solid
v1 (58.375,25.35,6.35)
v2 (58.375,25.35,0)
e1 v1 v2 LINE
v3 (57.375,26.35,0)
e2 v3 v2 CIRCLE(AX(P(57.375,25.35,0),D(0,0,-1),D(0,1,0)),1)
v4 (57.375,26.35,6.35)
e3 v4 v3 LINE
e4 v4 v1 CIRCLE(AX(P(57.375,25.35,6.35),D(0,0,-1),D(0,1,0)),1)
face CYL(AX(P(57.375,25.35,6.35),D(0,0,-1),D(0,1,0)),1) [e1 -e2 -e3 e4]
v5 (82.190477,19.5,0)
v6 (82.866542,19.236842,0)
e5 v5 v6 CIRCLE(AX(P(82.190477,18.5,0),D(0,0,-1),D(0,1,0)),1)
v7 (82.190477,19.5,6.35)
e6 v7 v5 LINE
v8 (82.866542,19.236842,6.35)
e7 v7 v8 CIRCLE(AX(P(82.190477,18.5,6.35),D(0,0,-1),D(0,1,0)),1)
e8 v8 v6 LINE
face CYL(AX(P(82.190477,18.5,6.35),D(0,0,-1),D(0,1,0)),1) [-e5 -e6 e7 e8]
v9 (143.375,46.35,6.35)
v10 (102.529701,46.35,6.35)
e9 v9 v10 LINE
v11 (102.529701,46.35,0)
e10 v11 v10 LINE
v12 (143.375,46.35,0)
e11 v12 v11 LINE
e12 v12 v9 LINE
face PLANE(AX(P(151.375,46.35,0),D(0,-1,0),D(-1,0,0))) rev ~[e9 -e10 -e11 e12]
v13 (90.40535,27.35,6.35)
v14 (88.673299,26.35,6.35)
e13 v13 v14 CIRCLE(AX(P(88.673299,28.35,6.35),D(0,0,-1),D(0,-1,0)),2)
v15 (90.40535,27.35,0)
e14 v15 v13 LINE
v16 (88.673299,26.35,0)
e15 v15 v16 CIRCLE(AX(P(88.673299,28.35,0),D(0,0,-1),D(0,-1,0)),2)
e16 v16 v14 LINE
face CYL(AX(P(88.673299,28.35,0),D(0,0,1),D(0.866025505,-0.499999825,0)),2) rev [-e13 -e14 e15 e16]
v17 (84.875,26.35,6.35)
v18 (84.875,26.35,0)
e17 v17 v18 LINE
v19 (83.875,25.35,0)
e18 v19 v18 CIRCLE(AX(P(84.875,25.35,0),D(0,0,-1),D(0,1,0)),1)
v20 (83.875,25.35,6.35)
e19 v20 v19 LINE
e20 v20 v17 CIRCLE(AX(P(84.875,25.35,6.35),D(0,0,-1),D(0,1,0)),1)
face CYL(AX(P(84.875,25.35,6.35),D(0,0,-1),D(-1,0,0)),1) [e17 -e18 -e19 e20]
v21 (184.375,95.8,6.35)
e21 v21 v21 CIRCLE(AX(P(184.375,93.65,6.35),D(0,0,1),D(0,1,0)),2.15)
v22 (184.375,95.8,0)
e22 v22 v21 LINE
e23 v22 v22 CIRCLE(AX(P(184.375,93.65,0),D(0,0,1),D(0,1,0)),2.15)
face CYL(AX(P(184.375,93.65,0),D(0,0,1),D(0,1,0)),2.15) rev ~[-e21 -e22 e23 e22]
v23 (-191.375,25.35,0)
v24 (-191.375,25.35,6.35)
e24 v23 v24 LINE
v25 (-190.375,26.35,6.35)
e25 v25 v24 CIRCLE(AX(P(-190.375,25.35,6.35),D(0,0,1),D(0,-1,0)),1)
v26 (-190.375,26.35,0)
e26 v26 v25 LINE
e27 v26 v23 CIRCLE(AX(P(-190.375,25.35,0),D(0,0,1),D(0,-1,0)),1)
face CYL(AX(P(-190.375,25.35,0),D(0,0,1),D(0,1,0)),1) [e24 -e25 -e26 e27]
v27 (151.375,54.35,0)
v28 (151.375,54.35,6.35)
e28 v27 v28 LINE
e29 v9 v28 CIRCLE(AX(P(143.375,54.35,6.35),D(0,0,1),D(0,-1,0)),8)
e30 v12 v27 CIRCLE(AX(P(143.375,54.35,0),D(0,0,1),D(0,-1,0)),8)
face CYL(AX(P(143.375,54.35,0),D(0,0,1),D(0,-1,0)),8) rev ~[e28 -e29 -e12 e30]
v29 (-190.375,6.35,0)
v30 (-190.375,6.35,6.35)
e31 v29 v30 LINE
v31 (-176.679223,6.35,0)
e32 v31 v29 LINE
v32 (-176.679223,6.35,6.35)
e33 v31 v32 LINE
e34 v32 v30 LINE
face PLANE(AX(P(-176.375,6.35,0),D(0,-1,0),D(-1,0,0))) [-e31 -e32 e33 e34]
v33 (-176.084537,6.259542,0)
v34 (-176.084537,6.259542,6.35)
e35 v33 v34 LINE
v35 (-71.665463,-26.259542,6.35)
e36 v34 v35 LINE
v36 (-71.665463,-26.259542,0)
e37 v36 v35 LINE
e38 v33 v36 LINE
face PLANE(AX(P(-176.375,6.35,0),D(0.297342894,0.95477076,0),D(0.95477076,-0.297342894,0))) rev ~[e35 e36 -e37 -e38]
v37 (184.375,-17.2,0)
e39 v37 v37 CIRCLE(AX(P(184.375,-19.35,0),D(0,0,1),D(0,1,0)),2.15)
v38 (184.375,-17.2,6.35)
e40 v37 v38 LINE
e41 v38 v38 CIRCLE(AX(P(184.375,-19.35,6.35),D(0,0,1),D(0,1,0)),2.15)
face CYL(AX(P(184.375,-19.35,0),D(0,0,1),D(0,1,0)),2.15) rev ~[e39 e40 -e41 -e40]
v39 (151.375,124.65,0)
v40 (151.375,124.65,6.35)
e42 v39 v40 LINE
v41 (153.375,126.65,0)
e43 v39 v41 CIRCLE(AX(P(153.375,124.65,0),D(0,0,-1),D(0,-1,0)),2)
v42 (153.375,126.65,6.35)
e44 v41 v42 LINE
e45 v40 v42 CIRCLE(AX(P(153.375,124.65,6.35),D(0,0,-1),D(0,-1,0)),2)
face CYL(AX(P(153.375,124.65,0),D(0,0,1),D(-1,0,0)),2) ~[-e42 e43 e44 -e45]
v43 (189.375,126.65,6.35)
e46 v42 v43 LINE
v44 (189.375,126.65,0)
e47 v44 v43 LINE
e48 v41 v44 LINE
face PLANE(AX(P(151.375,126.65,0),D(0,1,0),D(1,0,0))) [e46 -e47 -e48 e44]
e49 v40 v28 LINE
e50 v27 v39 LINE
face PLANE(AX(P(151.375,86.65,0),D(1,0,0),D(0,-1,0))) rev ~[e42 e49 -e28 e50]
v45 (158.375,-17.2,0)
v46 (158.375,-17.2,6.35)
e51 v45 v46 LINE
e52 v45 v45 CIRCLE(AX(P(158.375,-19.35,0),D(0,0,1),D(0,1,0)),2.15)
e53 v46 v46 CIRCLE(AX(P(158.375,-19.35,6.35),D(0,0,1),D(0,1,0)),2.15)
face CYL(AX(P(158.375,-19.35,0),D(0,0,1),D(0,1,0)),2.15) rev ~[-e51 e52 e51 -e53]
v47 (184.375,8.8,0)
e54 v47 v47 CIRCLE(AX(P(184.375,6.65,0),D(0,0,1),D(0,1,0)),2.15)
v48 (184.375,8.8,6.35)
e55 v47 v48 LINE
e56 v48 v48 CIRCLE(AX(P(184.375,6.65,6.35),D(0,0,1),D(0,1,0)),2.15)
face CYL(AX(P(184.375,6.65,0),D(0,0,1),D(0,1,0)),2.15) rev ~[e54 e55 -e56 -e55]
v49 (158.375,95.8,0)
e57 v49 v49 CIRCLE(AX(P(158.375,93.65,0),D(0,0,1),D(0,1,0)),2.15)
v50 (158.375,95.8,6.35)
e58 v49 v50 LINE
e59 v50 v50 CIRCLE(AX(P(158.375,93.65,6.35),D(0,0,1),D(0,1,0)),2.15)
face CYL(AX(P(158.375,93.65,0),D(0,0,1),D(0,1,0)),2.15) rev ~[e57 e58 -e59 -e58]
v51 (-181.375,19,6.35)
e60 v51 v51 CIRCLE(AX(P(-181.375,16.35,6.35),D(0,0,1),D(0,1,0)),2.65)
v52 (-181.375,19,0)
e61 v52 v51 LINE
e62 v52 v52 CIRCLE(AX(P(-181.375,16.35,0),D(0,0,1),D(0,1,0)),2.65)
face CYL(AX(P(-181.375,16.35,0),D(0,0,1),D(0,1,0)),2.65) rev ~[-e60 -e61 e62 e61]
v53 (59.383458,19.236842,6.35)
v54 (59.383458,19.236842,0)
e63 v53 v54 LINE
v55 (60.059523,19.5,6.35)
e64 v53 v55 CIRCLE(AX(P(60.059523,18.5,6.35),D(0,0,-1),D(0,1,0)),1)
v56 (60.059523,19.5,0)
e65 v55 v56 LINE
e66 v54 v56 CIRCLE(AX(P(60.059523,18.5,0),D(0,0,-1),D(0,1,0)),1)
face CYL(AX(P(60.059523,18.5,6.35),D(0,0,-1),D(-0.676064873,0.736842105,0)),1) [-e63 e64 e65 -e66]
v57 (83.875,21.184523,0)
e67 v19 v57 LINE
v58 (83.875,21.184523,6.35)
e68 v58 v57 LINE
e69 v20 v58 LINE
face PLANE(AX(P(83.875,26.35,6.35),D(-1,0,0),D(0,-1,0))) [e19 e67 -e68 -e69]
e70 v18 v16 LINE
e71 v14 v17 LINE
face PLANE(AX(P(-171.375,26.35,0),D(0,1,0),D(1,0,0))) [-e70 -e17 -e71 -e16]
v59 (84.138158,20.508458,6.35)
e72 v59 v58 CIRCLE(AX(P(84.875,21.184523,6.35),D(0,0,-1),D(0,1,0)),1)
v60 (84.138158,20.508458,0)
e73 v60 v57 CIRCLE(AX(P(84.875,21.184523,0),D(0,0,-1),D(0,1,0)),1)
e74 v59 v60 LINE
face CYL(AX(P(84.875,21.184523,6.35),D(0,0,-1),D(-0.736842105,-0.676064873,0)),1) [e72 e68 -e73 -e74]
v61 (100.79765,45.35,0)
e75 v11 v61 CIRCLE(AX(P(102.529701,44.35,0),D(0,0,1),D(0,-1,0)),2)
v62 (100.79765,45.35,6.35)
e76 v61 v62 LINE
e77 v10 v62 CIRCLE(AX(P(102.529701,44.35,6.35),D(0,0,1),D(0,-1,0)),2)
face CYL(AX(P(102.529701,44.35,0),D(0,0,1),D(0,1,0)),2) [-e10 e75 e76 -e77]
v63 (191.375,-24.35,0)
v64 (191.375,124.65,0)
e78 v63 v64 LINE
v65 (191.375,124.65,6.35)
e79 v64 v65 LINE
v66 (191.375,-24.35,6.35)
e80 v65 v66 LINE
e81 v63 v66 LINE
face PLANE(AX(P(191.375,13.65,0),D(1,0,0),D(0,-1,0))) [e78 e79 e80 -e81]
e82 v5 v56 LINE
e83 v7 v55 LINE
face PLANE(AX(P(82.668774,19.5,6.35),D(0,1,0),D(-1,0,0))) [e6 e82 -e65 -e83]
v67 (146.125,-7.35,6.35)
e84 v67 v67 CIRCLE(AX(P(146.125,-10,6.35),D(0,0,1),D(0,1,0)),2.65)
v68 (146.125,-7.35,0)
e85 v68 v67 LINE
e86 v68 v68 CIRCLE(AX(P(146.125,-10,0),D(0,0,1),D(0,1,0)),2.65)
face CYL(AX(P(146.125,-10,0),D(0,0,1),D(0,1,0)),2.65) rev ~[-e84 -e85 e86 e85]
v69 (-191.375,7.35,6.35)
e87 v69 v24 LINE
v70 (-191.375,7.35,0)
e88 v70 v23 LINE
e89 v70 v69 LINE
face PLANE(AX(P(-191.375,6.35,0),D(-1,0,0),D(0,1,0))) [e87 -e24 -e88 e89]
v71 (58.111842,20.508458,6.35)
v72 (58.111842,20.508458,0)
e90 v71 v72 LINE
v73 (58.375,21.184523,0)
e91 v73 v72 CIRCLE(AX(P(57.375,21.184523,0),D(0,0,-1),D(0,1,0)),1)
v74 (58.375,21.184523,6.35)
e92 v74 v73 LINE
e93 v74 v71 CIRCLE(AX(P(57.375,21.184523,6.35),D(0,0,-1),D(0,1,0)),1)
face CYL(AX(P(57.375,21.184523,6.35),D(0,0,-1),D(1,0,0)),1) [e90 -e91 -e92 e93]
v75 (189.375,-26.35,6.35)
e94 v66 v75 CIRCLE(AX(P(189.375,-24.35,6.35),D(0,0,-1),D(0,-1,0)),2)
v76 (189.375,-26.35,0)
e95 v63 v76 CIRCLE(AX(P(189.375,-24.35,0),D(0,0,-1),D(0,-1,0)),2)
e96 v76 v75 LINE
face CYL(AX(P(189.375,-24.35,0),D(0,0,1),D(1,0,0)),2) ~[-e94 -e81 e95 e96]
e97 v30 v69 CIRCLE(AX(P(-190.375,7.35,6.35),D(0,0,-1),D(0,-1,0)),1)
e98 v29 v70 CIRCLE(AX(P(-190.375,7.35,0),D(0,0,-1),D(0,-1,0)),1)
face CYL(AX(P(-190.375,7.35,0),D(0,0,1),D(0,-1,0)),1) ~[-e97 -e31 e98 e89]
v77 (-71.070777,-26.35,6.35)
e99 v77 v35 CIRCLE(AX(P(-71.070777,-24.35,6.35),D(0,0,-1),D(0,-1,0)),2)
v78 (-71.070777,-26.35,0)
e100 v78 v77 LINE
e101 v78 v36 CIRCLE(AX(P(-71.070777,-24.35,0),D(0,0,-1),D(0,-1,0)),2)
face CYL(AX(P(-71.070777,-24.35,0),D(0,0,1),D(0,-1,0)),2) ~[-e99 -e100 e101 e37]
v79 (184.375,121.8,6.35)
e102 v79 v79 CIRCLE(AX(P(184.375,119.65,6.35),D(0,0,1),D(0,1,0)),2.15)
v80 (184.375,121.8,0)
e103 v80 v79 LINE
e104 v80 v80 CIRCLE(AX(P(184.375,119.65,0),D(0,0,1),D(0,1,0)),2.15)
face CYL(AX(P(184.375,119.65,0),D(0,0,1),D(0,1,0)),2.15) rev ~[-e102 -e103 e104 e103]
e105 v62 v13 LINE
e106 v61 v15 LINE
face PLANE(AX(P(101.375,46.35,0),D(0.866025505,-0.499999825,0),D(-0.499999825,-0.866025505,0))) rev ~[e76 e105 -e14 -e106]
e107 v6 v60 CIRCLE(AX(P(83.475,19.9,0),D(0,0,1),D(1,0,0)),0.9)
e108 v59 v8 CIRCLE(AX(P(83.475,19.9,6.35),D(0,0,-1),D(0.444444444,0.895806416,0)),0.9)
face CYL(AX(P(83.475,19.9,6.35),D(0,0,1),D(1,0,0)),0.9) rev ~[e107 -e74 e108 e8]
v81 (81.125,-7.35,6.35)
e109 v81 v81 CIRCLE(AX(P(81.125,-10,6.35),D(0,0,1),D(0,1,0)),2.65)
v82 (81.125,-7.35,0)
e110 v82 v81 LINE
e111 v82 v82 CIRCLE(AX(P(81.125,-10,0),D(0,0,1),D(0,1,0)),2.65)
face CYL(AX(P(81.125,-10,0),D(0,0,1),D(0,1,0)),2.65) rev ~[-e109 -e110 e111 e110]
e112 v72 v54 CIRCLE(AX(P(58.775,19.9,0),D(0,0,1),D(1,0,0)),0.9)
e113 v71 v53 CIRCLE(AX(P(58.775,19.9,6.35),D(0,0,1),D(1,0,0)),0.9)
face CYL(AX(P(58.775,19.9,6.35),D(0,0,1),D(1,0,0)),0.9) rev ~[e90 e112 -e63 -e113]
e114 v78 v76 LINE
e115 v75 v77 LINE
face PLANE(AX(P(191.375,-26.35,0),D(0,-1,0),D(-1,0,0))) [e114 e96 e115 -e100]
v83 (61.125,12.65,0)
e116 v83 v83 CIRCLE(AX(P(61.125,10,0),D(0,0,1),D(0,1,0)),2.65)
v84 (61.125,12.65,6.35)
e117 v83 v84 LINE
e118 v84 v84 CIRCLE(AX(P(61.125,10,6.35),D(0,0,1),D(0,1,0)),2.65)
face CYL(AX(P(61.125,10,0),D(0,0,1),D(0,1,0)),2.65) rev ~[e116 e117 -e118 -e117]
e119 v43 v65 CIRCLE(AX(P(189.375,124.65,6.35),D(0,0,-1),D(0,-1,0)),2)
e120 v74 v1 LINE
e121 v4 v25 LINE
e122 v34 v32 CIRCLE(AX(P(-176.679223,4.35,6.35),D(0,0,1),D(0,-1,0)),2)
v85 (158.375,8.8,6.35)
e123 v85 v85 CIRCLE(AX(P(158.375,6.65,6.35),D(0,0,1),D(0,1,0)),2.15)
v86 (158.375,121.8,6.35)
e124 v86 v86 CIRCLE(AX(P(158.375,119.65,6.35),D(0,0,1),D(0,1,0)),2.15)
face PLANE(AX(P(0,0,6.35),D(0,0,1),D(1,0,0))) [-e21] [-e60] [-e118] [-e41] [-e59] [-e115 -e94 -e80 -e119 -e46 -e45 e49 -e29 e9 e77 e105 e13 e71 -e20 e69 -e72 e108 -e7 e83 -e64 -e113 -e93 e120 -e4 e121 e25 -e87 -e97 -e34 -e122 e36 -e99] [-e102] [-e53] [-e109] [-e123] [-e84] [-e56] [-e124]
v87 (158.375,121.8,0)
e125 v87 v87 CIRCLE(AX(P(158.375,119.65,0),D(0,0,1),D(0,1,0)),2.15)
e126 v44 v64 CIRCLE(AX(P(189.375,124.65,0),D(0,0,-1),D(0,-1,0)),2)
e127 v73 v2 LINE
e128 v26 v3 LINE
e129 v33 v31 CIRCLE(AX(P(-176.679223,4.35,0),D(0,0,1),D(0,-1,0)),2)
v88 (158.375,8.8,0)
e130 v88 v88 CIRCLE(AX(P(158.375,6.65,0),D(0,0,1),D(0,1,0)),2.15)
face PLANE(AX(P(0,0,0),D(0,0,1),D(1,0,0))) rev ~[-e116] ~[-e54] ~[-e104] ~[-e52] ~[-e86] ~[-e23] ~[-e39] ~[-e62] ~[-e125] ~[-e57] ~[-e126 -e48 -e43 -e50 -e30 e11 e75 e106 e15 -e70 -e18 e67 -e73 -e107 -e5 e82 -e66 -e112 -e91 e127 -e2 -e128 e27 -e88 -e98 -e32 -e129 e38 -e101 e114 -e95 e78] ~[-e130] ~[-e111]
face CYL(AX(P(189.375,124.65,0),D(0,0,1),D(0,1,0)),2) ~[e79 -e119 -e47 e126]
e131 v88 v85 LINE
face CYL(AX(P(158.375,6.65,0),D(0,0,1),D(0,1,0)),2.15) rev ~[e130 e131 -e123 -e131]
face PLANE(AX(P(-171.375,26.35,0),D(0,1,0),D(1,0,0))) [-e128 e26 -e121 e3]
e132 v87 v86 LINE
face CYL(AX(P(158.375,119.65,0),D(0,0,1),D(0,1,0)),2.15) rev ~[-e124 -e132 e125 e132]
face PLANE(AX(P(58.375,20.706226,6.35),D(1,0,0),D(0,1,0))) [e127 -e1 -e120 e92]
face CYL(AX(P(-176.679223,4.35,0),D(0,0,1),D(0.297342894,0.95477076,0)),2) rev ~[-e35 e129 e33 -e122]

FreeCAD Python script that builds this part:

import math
import FreeCAD as App
import Part
import Sketcher
from FreeCAD import Vector
Q = App.Units.Quantity


def edges_at(feature, points):
    """Names of the edges that pass closest to the given points."""
    edges = feature.Shape.Edges
    near = lambda p: min(range(len(edges)), key=lambda i: edges[i].distToShape(Part.Vertex(*p))[0])
    return sorted({f"Edge{near(p) + 1}" for p in points})


def add_polygon(sketch, points):
    """Adds a closed chain of lines whose ends are joined by coincident constraints."""
    first, n = sketch.GeometryCount, len(points)
    for a, b in zip(points, points[1:] + points[:1]):
        sketch.addGeometry(Part.LineSegment(App.Vector(*a, 0), App.Vector(*b, 0)), False)
    for i in range(n):
        sketch.addConstraint(Sketcher.Constraint("Coincident", first + i, 2, first + (i + 1) % n, 1))

doc = App.newDocument("Part")
body = doc.addObject("PartDesign::Body", "Body")

sketch1 = doc.addObject("Sketcher::SketchObject", "Sketch")
body.addObject(sketch1)
sketch1.AttachmentSupport = (doc.XY_Plane, [""])
sketch1.MapMode = "FlatFace"
add_polygon(sketch1, [(191, -26), (191, 127), (151, 127), (151, 46), (101, 46), (90, 26), (-191, 26), (-191, 6), (-176, 6), (-71, -26)])
sketch1.addConstraint(Sketcher.Constraint("Vertical", 0))
sketch1.addConstraint(Sketcher.Constraint("Horizontal", 1))
sketch1.addConstraint(Sketcher.Constraint("Vertical", 2))
sketch1.addConstraint(Sketcher.Constraint("Horizontal", 3))
sketch1.addConstraint(Sketcher.Constraint("Horizontal", 5))
sketch1.addConstraint(Sketcher.Constraint("Vertical", 6))
sketch1.addConstraint(Sketcher.Constraint("Horizontal", 7))
sketch1.addConstraint(Sketcher.Constraint("Horizontal", 9))
sketch1.addConstraint(Sketcher.Constraint("Symmetric", 5, 2, 9, 2, -1, 1))
sketch1.addConstraint(Sketcher.Constraint("DistanceX", 1, 2, 1, 1, 40.0))
sketch1.addConstraint(Sketcher.Constraint("DistanceX", 3, 2, 3, 1, 50.0))
sketch1.addConstraint(Sketcher.Constraint("DistanceX", 7, 1, 7, 2, 15.0))
sketch1.addConstraint(Sketcher.Constraint("DistanceY", 0, 1, 0, 2, 153.0))
sketch1.addConstraint(Sketcher.Constraint("DistanceY", 6, 2, 6, 1, 20.0))
sketch1.addConstraint(Sketcher.Constraint("Angle", 4, Q("-120 deg")))
sketch1.addConstraint(Sketcher.Constraint("DistanceY", 4, 2, 3, 2, 20.0))
sketch1.addConstraint(Sketcher.Constraint("DistanceX", 6, 2, 8, 2, 120.0))
sketch1.addConstraint(Sketcher.Constraint("DistanceY", 8, 2, 5, 2, 52.7))
sketch1.addConstraint(Sketcher.Constraint("DistanceX", 9, 1, 9, 2, 262.75))
pad1 = doc.addObject("PartDesign::Pad", "Pad")
body.addObject(pad1)
pad1.Profile = sketch1
pad1.Length = 6.35
doc.recompute()

fillet = doc.addObject("PartDesign::Fillet", "Fillet")
body.addObject(fillet)
fillet.Base = (pad1, edges_at(pad1, [(-191.375, 26.35, 3.175), (-191.375, 6.35, 3.175)]))
fillet.Radius = 1
doc.recompute()

fillet2 = doc.addObject("PartDesign::Fillet", "Fillet001")
body.addObject(fillet2)
fillet2.Base = (fillet, edges_at(fillet, [(151.375, 46.35, 3.175)]))
fillet2.Radius = 8
doc.recompute()

fillet3 = doc.addObject("PartDesign::Fillet", "Fillet002")
body.addObject(fillet3)
fillet3.Base = (fillet2, edges_at(fillet2, [
    (151.375, 126.65, 3.175),
    (191.375, 126.65, 3.175),
    (191.375, -26.35, 3.175),
    (89.828, 26.35, 3.175),
    (101.375, 46.35, 3.175),
    (-71.375, -26.35, 3.175),
    (-176.375, 6.35, 3.175),
]))
fillet3.Radius = 2

sketch2 = doc.addObject("Sketcher::SketchObject", "Sketch001")
body.addObject(sketch2)
sketch2.AttachmentSupport = (doc.XY_Plane, [""])
sketch2.MapMode = "FlatFace"
sketch2.addGeometry(Part.Circle(Vector(61.1, 10, 0), Vector(0, 0, 1), 2.6), False)
sketch2.addGeometry(Part.Circle(Vector(81.1, -10, 0), Vector(0, 0, 1), 2.6), False)
sketch2.addGeometry(Part.Circle(Vector(146.1, -10, 0), Vector(0, 0, 1), 2.6), False)
sketch2.addGeometry(Part.Circle(Vector(-181.4, 16.4, 0), Vector(0, 0, 1), 2.6), False)
sketch2.addConstraint(Sketcher.Constraint("Equal", 0, 1))
sketch2.addConstraint(Sketcher.Constraint("Equal", 1, 2))
sketch2.addConstraint(Sketcher.Constraint("Equal", 2, 3))
sketch2.addConstraint(Sketcher.Constraint("Horizontal", 1, 3, 2, 3))
sketch2.addConstraint(Sketcher.Constraint("Diameter", 0, 5.3))
sketch2.addConstraint(Sketcher.Constraint("DistanceY", -1, 1, 0, 3, 10.0))
sketch2.addConstraint(Sketcher.Constraint("DistanceY", 1, 3, -1, 1, 10.0))
sketch2.addConstraint(Sketcher.Constraint("DistanceX", 0, 3, 1, 3, 20.0))
sketch2.addConstraint(Sketcher.Constraint("DistanceX", 1, 3, 2, 3, 65.0))
sketch2.addConstraint(Sketcher.Constraint("DistanceX", 3, 3, 0, 3, 242.5))
sketch2.addConstraint(Sketcher.Constraint("DistanceY", -1, 1, 3, 3, 16.35))
sketch2.addConstraint(Sketcher.Constraint("DistanceX", -1, 1, 0, 3, 61.125))
doc.recompute()
hole = doc.addObject("PartDesign::Hole", "Hole")
body.addObject(hole)
hole.Profile = sketch2
hole.ThreadType = "None"
hole.Diameter = 5.3
hole.DepthType = "ThroughAll"
hole.Reversed = True

sketch3 = doc.addObject("Sketcher::SketchObject", "Sketch002")
body.addObject(sketch3)
sketch3.AttachmentSupport = (doc.XY_Plane, [""])
sketch3.MapMode = "FlatFace"
sketch3.addGeometry(Part.Circle(Vector(184.4, 6.7, 0), Vector(0, 0, 1), 2.1), False)
sketch3.addGeometry(Part.Circle(Vector(158.4, 6.7, 0), Vector(0, 0, 1), 2.1), False)
sketch3.addGeometry(Part.Circle(Vector(158.4, -19.4, 0), Vector(0, 0, 1), 2.1), False)
sketch3.addGeometry(Part.Circle(Vector(184.4, -19.4, 0), Vector(0, 0, 1), 2.1), False)
sketch3.addGeometry(Part.Circle(Vector(184.4, 119.7, 0), Vector(0, 0, 1), 2.1), False)
sketch3.addGeometry(Part.Circle(Vector(158.4, 119.7, 0), Vector(0, 0, 1), 2.1), False)
sketch3.addGeometry(Part.Circle(Vector(158.4, 93.7, 0), Vector(0, 0, 1), 2.1), False)
sketch3.addGeometry(Part.Circle(Vector(184.4, 93.7, 0), Vector(0, 0, 1), 2.1), False)
sketch3.addConstraint(Sketcher.Constraint("Equal", 0, 1))
sketch3.addConstraint(Sketcher.Constraint("Equal", 1, 2))
sketch3.addConstraint(Sketcher.Constraint("Equal", 2, 3))
sketch3.addConstraint(Sketcher.Constraint("Equal", 3, 4))
sketch3.addConstraint(Sketcher.Constraint("Equal", 4, 5))
sketch3.addConstraint(Sketcher.Constraint("Equal", 5, 6))
sketch3.addConstraint(Sketcher.Constraint("Equal", 6, 7))
sketch3.addConstraint(Sketcher.Constraint("Horizontal", 0, 3, 1, 3))
sketch3.addConstraint(Sketcher.Constraint("Horizontal", 2, 3, 3, 3))
sketch3.addConstraint(Sketcher.Constraint("Horizontal", 4, 3, 5, 3))
sketch3.addConstraint(Sketcher.Constraint("Horizontal", 6, 3, 7, 3))
sketch3.addConstraint(Sketcher.Constraint("Vertical", 1, 3, 2, 3))
sketch3.addConstraint(Sketcher.Constraint("Vertical", 0, 3, 3, 3))
sketch3.addConstraint(Sketcher.Constraint("Vertical", 3, 3, 4, 3))
sketch3.addConstraint(Sketcher.Constraint("Vertical", 2, 3, 5, 3))
sketch3.addConstraint(Sketcher.Constraint("Vertical", 5, 3, 6, 3))
sketch3.addConstraint(Sketcher.Constraint("Vertical", 4, 3, 7, 3))
sketch3.addConstraint(Sketcher.Constraint("Diameter", 0, 4.3))
sketch3.addConstraint(Sketcher.Constraint("DistanceX", 1, 3, 0, 3, 26.0))
sketch3.addConstraint(Sketcher.Constraint("DistanceY", 2, 3, 1, 3, 26.0))
sketch3.addConstraint(Sketcher.Constraint("DistanceY", 0, 3, 4, 3, 113.0))
sketch3.addConstraint(Sketcher.Constraint("DistanceY", 6, 3, 5, 3, 26.0))
sketch3.addConstraint(Sketcher.Constraint("DistanceY", -1, 1, 0, 3, 6.65))
sketch3.addConstraint(Sketcher.Constraint("DistanceX", -1, 1, 0, 3, 184.375))
doc.recompute()
hole2 = doc.addObject("PartDesign::Hole", "Hole001")
body.addObject(hole2)
hole2.Profile = sketch3
hole2.ThreadType = "None"
hole2.Diameter = 4.3
hole2.DepthType = "ThroughAll"
hole2.Reversed = True

sketch4 = doc.addObject("Sketcher::SketchObject", "Sketch003")
body.addObject(sketch4)
sketch4.AttachmentSupport = (doc.XY_Plane, [""])
sketch4.MapMode = "FlatFace"
sketch4.AttachmentOffset = App.Placement(Vector(0, 0, 6.35), App.Rotation())
sketch4.addGeometry(Part.LineSegment(Vector(83.9, 20.7, 0), Vector(83.9, 26.4, 0)), False)
sketch4.addGeometry(Part.LineSegment(Vector(83.9, 26.4, 0), Vector(58.4, 26.4, 0)), False)
sketch4.addGeometry(Part.LineSegment(Vector(58.4, 26.4, 0), Vector(58.4, 20.7, 0)), False)
sketch4.addGeometry(Part.ArcOfCircle(Part.Circle(Vector(58.8, 19.9, 0), Vector(0, 0, 1), 0.9), math.radians(116), math.radians(334)), False)
sketch4.addGeometry(Part.LineSegment(Vector(59.6, 19.5, 0), Vector(82.7, 19.5, 0)), False)
sketch4.addGeometry(Part.ArcOfCircle(Part.Circle(Vector(83.5, 19.9, 0), Vector(0, 0, 1), 0.9), math.radians(-154), math.radians(64)), False)
sketch4.addConstraint(Sketcher.Constraint("Coincident", 0, 2, 1, 1))
sketch4.addConstraint(Sketcher.Constraint("Coincident", 1, 2, 2, 1))
sketch4.addConstraint(Sketcher.Constraint("Coincident", 2, 2, 3, 1))
sketch4.addConstraint(Sketcher.Constraint("Coincident", 3, 2, 4, 1))
sketch4.addConstraint(Sketcher.Constraint("Coincident", 4, 2, 5, 1))
sketch4.addConstraint(Sketcher.Constraint("Coincident", 5, 2, 0, 1))
sketch4.addConstraint(Sketcher.Constraint("Vertical", 0))
sketch4.addConstraint(Sketcher.Constraint("Horizontal", 1))
sketch4.addConstraint(Sketcher.Constraint("Vertical", 2))
sketch4.addConstraint(Sketcher.Constraint("Horizontal", 4))
sketch4.addConstraint(Sketcher.Constraint("Equal", 3, 5))
sketch4.addConstraint(Sketcher.Constraint("Horizontal", 3, 3, 5, 3))
sketch4.addConstraint(Sketcher.Constraint("Horizontal", 2, 2, 5, 2))
sketch4.addConstraint(Sketcher.Constraint("Radius", 3, 0.9))
sketch4.addConstraint(Sketcher.Constraint("DistanceX", 1, 2, 1, 1, 25.5))
sketch4.addConstraint(Sketcher.Constraint("DistanceX", 5, 3, 0, 2, 0.4))
sketch4.addConstraint(Sketcher.Constraint("DistanceY", 3, 2, 3, 3, 0.4))
sketch4.addConstraint(Sketcher.Constraint("DistanceY", 3, 2, 1, 2, 6.85))
sketch4.addConstraint(Sketcher.Constraint("DistanceY", -1, 1, 3, 3, 19.9))
sketch4.addConstraint(Sketcher.Constraint("DistanceX", -1, 1, 3, 3, 58.775))
pocket1 = doc.addObject("PartDesign::Pocket", "Pocket")
body.addObject(pocket1)
pocket1.Profile = sketch4
pocket1.Type = "ThroughAll"
doc.recompute()

fillet4 = doc.addObject("PartDesign::Fillet", "Fillet003")
body.addObject(fillet4)
fillet4.Base = (pocket1, edges_at(pocket1, [
    (83.875, 20.706, 3.175),
    (82.669, 19.5, 3.175),
    (59.581, 19.5, 3.175),
    (58.375, 20.706, 3.175),
    (58.375, 26.35, 3.175),
    (83.875, 26.35, 3.175),
]))
fillet4.Radius = 1

doc.recompute()
